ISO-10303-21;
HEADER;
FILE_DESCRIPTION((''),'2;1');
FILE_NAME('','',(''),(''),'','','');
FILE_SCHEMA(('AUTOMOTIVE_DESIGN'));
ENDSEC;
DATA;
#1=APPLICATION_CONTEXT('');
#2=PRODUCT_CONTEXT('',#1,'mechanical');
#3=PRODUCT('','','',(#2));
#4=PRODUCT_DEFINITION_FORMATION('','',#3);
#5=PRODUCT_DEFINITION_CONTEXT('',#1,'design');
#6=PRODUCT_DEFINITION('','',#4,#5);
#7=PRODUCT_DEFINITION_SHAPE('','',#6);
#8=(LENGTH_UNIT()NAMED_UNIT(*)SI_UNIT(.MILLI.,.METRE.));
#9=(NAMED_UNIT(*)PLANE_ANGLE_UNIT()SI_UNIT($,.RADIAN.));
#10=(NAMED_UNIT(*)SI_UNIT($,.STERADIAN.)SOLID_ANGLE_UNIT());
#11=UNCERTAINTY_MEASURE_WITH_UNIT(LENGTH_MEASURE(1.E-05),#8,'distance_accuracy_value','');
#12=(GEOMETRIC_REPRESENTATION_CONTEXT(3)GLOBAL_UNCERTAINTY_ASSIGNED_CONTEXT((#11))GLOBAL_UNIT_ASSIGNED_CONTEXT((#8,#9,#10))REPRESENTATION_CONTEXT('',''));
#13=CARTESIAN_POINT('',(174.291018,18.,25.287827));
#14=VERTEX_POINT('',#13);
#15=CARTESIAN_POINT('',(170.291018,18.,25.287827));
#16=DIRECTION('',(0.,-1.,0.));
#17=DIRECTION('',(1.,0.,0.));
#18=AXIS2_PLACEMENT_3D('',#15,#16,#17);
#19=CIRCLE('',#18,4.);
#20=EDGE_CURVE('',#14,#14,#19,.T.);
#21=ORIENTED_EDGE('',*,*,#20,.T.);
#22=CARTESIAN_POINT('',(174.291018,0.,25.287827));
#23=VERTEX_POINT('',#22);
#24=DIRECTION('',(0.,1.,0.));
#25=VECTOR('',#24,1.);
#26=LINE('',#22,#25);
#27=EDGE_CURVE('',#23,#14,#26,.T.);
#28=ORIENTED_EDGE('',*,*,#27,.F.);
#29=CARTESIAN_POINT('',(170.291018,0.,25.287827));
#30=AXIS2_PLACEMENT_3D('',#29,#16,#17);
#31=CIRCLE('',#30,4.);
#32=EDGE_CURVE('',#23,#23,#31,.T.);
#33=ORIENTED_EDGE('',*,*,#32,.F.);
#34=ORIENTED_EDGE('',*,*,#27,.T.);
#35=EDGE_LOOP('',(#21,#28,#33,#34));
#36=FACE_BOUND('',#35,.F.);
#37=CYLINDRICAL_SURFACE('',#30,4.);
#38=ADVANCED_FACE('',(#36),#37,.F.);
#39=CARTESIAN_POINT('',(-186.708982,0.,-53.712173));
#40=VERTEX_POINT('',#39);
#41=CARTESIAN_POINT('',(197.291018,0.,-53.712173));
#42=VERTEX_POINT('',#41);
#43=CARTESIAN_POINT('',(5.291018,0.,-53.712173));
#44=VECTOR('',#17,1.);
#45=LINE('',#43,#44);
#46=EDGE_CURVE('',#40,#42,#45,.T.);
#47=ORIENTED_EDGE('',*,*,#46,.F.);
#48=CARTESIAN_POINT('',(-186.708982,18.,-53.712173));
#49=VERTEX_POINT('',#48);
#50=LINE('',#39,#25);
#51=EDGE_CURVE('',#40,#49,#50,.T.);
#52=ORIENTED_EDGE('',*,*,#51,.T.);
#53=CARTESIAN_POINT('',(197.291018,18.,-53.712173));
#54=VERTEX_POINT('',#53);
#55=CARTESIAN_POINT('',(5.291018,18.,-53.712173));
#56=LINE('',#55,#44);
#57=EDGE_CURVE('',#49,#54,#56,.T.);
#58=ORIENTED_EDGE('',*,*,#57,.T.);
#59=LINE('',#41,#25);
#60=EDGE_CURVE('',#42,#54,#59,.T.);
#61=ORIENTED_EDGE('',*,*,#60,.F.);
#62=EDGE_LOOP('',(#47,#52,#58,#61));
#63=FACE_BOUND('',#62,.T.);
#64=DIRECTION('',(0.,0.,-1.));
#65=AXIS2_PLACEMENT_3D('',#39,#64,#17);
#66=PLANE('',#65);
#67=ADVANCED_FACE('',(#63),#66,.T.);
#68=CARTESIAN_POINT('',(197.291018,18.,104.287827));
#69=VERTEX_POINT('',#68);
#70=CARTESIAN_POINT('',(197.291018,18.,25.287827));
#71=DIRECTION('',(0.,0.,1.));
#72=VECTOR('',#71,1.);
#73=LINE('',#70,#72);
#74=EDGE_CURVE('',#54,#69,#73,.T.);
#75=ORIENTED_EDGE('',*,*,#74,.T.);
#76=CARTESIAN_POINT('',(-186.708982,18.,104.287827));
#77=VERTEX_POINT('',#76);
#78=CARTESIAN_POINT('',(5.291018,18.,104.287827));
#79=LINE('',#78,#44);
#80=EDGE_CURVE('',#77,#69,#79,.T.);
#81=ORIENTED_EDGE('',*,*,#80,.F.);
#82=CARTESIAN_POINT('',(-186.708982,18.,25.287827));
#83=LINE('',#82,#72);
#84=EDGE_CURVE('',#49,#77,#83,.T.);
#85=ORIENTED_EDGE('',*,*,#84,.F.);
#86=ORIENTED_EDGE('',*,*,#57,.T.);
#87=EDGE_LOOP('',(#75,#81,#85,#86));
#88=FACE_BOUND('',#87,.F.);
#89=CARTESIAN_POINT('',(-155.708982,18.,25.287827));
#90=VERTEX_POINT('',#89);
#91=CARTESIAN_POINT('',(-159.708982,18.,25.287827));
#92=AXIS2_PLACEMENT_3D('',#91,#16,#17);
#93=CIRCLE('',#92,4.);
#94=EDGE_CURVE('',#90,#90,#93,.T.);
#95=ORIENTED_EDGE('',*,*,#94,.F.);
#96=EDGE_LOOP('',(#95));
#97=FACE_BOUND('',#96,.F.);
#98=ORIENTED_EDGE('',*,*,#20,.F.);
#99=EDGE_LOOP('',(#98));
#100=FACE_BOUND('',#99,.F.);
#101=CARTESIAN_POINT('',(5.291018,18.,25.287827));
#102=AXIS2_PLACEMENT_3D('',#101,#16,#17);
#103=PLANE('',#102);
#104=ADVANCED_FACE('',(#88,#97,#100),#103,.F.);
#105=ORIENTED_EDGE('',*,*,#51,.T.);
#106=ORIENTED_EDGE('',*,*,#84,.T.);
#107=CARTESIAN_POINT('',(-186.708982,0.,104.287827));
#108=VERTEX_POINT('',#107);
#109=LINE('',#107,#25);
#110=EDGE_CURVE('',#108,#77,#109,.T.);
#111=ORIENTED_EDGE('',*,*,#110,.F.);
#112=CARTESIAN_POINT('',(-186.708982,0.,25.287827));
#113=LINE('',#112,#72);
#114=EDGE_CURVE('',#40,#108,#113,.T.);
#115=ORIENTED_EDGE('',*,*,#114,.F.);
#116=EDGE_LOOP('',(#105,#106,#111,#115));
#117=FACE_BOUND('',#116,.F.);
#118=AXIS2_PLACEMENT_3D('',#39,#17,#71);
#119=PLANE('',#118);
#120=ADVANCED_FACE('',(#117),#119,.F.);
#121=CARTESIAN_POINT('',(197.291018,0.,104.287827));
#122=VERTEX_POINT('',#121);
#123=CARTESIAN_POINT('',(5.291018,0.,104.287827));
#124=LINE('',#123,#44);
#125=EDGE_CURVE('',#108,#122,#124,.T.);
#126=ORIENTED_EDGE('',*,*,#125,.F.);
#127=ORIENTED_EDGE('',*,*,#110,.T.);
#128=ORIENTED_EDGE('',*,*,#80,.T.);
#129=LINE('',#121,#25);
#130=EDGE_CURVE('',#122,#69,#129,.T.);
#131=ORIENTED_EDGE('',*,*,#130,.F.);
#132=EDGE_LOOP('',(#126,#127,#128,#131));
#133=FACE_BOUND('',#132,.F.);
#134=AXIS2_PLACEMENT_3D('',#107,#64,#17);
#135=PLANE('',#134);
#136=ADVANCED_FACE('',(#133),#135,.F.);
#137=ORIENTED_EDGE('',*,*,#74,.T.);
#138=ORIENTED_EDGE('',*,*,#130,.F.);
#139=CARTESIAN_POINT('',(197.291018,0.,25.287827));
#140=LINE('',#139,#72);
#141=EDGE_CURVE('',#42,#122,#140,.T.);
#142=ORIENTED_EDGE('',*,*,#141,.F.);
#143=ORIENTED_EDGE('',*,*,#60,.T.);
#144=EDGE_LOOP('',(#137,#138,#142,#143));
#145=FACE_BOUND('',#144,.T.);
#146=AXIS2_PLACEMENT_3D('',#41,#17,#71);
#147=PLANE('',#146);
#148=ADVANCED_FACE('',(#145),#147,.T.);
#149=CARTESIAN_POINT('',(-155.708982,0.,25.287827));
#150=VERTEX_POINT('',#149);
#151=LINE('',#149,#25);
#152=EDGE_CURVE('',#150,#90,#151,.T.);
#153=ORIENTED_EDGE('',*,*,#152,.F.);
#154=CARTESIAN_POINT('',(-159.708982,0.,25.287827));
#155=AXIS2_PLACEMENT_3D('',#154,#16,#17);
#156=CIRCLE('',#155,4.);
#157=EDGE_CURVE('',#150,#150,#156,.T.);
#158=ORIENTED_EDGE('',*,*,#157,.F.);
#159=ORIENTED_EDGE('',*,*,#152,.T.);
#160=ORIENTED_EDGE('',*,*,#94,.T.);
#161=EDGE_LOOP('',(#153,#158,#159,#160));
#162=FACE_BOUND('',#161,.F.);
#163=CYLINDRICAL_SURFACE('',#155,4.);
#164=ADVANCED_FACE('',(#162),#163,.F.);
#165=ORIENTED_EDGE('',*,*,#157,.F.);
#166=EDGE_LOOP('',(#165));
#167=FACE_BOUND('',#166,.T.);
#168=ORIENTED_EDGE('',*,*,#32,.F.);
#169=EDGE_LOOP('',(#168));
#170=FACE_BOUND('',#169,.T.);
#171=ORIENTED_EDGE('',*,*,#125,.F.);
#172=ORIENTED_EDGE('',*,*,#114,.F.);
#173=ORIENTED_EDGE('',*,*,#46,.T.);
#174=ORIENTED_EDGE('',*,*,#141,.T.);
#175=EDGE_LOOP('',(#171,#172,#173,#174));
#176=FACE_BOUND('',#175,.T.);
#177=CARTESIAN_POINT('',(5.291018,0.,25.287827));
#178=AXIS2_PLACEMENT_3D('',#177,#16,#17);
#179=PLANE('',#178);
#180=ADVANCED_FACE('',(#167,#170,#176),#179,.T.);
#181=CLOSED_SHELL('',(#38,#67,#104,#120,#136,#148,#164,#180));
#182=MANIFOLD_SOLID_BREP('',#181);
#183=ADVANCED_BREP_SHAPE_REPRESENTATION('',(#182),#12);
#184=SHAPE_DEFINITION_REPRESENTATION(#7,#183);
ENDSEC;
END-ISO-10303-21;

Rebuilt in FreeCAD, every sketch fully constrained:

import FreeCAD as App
import Part
import Sketcher
from FreeCAD import Vector
Q = App.Units.Quantity

doc = App.newDocument("Part")
body = doc.addObject("PartDesign::Body", "Body")

sketch1 = body.newObject("Sketcher::SketchObject", "Sketch")
sketch1.AttachmentSupport = (doc.getObject("XZ_Plane"), [""])
sketch1.MapMode = "FlatFace"
sketch1.addGeometry(Part.LineSegment(Vector(-186.708982, 104.287827, 0), Vector(-186.708982, -53.712173, 0)), False)
sketch1.addGeometry(Part.LineSegment(Vector(-186.708982, -53.712173, 0), Vector(197.291018, -53.712173, 0)), False)
sketch1.addGeometry(Part.LineSegment(Vector(197.291018, -53.712173, 0), Vector(197.291018, 104.287827, 0)), False)
sketch1.addGeometry(Part.LineSegment(Vector(197.291018, 104.287827, 0), Vector(-186.708982, 104.287827, 0)), False)
sketch1.addGeometry(Part.Circle(Vector(-159.708982, 25.287827, 0), Vector(0, 0, 1), 4), False)
sketch1.addGeometry(Part.Circle(Vector(170.291018, 25.287827, 0), Vector(0, 0, 1), 4), False)
sketch1.addConstraint(Sketcher.Constraint("Coincident", 0, 2, 1, 1))
sketch1.addConstraint(Sketcher.Constraint("Coincident", 1, 2, 2, 1))
sketch1.addConstraint(Sketcher.Constraint("Coincident", 2, 2, 3, 1))
sketch1.addConstraint(Sketcher.Constraint("Coincident", 3, 2, 0, 1))
sketch1.addConstraint(Sketcher.Constraint("Vertical", 0))
sketch1.addConstraint(Sketcher.Constraint("Horizontal", 1))
sketch1.addConstraint(Sketcher.Constraint("Vertical", 2))
sketch1.addConstraint(Sketcher.Constraint("Horizontal", 3))
sketch1.addConstraint(Sketcher.Constraint("Equal", 4, 5))
sketch1.addConstraint(Sketcher.Constraint("Horizontal", 4, 3, 5, 3))
sketch1.addConstraint(Sketcher.Constraint("Diameter", 4, Q("8 mm")))
sketch1.addConstraint(Sketcher.Constraint("DistanceX", 1, 1, 1, 2, Q("384 mm")))
sketch1.addConstraint(Sketcher.Constraint("DistanceY", 0, 2, 0, 1, Q("158 mm")))
sketch1.addConstraint(Sketcher.Constraint("DistanceX", 4, 3, 5, 3, Q("330 mm")))
sketch1.addConstraint(Sketcher.Constraint("DistanceX", 0, 2, 4, 3, Q("27 mm")))
sketch1.addConstraint(Sketcher.Constraint("DistanceY", 0, 2, 4, 3, Q("79 mm")))
sketch1.addConstraint(Sketcher.Constraint("DistanceX", 4, 3, -1, 1, Q("159.708982 mm")))
sketch1.addConstraint(Sketcher.Constraint("DistanceY", -1, 1, 4, 3, Q("25.287827 mm")))
pad1 = body.newObject("PartDesign::Pad", "Pad")
pad1.Profile = sketch1
pad1.Length = 18
pad1.Reversed = True

doc.recompute()
